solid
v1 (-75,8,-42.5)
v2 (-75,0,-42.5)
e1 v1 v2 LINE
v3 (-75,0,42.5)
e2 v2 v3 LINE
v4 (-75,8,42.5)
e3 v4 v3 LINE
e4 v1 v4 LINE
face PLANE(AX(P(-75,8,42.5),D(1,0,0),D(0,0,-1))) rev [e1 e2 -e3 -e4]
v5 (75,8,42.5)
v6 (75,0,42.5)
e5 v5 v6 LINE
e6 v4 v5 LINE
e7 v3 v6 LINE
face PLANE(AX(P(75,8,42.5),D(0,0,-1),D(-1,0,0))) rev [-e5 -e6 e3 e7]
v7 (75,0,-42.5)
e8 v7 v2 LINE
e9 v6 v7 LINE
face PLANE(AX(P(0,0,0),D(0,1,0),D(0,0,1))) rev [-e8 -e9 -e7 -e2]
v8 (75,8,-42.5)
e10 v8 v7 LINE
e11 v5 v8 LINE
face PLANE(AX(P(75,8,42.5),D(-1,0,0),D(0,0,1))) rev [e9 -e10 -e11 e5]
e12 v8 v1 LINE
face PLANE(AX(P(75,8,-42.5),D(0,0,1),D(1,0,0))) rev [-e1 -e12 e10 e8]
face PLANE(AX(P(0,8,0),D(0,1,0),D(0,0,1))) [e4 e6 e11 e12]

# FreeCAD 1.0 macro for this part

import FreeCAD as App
import Part
import Sketcher
from FreeCAD import Vector
Q = App.Units.Quantity


def add_polygon(sketch, points):
    """Adds a closed chain of lines whose ends are joined by coincident constraints."""
    first, n = sketch.GeometryCount, len(points)
    for a, b in zip(points, points[1:] + points[:1]):
        sketch.addGeometry(Part.LineSegment(App.Vector(*a, 0), App.Vector(*b, 0)), False)
    for i in range(n):
        sketch.addConstraint(Sketcher.Constraint("Coincident", first + i, 2, first + (i + 1) % n, 1))

doc = App.newDocument("Part")
body = doc.addObject("PartDesign::Body", "Body")

sketch1 = doc.addObject("Sketcher::SketchObject", "Sketch")
body.addObject(sketch1)
sketch1.AttachmentSupport = (doc.XZ_Plane, [""])
sketch1.MapMode = "FlatFace"
add_polygon(sketch1, [(-75, -42), (-75, 42), (75, 42), (75, -42)])
sketch1.addConstraint(Sketcher.Constraint("Vertical", 0))
sketch1.addConstraint(Sketcher.Constraint("Horizontal", 1))
sketch1.addConstraint(Sketcher.Constraint("Vertical", 2))
sketch1.addConstraint(Sketcher.Constraint("Horizontal", 3))
sketch1.addConstraint(Sketcher.Constraint("Symmetric", 0, 2, 2, 2, -1, 1))
sketch1.addConstraint(Sketcher.Constraint("DistanceX", 1, 1, 1, 2, Q("150 mm")))
sketch1.addConstraint(Sketcher.Constraint("DistanceY", 0, 1, 0, 2, Q("85 mm")))
pad1 = doc.addObject("PartDesign::Pad", "Pad")
body.addObject(pad1)
pad1.Profile = sketch1
pad1.Length = 8
pad1.Reversed = True

doc.recompute()
